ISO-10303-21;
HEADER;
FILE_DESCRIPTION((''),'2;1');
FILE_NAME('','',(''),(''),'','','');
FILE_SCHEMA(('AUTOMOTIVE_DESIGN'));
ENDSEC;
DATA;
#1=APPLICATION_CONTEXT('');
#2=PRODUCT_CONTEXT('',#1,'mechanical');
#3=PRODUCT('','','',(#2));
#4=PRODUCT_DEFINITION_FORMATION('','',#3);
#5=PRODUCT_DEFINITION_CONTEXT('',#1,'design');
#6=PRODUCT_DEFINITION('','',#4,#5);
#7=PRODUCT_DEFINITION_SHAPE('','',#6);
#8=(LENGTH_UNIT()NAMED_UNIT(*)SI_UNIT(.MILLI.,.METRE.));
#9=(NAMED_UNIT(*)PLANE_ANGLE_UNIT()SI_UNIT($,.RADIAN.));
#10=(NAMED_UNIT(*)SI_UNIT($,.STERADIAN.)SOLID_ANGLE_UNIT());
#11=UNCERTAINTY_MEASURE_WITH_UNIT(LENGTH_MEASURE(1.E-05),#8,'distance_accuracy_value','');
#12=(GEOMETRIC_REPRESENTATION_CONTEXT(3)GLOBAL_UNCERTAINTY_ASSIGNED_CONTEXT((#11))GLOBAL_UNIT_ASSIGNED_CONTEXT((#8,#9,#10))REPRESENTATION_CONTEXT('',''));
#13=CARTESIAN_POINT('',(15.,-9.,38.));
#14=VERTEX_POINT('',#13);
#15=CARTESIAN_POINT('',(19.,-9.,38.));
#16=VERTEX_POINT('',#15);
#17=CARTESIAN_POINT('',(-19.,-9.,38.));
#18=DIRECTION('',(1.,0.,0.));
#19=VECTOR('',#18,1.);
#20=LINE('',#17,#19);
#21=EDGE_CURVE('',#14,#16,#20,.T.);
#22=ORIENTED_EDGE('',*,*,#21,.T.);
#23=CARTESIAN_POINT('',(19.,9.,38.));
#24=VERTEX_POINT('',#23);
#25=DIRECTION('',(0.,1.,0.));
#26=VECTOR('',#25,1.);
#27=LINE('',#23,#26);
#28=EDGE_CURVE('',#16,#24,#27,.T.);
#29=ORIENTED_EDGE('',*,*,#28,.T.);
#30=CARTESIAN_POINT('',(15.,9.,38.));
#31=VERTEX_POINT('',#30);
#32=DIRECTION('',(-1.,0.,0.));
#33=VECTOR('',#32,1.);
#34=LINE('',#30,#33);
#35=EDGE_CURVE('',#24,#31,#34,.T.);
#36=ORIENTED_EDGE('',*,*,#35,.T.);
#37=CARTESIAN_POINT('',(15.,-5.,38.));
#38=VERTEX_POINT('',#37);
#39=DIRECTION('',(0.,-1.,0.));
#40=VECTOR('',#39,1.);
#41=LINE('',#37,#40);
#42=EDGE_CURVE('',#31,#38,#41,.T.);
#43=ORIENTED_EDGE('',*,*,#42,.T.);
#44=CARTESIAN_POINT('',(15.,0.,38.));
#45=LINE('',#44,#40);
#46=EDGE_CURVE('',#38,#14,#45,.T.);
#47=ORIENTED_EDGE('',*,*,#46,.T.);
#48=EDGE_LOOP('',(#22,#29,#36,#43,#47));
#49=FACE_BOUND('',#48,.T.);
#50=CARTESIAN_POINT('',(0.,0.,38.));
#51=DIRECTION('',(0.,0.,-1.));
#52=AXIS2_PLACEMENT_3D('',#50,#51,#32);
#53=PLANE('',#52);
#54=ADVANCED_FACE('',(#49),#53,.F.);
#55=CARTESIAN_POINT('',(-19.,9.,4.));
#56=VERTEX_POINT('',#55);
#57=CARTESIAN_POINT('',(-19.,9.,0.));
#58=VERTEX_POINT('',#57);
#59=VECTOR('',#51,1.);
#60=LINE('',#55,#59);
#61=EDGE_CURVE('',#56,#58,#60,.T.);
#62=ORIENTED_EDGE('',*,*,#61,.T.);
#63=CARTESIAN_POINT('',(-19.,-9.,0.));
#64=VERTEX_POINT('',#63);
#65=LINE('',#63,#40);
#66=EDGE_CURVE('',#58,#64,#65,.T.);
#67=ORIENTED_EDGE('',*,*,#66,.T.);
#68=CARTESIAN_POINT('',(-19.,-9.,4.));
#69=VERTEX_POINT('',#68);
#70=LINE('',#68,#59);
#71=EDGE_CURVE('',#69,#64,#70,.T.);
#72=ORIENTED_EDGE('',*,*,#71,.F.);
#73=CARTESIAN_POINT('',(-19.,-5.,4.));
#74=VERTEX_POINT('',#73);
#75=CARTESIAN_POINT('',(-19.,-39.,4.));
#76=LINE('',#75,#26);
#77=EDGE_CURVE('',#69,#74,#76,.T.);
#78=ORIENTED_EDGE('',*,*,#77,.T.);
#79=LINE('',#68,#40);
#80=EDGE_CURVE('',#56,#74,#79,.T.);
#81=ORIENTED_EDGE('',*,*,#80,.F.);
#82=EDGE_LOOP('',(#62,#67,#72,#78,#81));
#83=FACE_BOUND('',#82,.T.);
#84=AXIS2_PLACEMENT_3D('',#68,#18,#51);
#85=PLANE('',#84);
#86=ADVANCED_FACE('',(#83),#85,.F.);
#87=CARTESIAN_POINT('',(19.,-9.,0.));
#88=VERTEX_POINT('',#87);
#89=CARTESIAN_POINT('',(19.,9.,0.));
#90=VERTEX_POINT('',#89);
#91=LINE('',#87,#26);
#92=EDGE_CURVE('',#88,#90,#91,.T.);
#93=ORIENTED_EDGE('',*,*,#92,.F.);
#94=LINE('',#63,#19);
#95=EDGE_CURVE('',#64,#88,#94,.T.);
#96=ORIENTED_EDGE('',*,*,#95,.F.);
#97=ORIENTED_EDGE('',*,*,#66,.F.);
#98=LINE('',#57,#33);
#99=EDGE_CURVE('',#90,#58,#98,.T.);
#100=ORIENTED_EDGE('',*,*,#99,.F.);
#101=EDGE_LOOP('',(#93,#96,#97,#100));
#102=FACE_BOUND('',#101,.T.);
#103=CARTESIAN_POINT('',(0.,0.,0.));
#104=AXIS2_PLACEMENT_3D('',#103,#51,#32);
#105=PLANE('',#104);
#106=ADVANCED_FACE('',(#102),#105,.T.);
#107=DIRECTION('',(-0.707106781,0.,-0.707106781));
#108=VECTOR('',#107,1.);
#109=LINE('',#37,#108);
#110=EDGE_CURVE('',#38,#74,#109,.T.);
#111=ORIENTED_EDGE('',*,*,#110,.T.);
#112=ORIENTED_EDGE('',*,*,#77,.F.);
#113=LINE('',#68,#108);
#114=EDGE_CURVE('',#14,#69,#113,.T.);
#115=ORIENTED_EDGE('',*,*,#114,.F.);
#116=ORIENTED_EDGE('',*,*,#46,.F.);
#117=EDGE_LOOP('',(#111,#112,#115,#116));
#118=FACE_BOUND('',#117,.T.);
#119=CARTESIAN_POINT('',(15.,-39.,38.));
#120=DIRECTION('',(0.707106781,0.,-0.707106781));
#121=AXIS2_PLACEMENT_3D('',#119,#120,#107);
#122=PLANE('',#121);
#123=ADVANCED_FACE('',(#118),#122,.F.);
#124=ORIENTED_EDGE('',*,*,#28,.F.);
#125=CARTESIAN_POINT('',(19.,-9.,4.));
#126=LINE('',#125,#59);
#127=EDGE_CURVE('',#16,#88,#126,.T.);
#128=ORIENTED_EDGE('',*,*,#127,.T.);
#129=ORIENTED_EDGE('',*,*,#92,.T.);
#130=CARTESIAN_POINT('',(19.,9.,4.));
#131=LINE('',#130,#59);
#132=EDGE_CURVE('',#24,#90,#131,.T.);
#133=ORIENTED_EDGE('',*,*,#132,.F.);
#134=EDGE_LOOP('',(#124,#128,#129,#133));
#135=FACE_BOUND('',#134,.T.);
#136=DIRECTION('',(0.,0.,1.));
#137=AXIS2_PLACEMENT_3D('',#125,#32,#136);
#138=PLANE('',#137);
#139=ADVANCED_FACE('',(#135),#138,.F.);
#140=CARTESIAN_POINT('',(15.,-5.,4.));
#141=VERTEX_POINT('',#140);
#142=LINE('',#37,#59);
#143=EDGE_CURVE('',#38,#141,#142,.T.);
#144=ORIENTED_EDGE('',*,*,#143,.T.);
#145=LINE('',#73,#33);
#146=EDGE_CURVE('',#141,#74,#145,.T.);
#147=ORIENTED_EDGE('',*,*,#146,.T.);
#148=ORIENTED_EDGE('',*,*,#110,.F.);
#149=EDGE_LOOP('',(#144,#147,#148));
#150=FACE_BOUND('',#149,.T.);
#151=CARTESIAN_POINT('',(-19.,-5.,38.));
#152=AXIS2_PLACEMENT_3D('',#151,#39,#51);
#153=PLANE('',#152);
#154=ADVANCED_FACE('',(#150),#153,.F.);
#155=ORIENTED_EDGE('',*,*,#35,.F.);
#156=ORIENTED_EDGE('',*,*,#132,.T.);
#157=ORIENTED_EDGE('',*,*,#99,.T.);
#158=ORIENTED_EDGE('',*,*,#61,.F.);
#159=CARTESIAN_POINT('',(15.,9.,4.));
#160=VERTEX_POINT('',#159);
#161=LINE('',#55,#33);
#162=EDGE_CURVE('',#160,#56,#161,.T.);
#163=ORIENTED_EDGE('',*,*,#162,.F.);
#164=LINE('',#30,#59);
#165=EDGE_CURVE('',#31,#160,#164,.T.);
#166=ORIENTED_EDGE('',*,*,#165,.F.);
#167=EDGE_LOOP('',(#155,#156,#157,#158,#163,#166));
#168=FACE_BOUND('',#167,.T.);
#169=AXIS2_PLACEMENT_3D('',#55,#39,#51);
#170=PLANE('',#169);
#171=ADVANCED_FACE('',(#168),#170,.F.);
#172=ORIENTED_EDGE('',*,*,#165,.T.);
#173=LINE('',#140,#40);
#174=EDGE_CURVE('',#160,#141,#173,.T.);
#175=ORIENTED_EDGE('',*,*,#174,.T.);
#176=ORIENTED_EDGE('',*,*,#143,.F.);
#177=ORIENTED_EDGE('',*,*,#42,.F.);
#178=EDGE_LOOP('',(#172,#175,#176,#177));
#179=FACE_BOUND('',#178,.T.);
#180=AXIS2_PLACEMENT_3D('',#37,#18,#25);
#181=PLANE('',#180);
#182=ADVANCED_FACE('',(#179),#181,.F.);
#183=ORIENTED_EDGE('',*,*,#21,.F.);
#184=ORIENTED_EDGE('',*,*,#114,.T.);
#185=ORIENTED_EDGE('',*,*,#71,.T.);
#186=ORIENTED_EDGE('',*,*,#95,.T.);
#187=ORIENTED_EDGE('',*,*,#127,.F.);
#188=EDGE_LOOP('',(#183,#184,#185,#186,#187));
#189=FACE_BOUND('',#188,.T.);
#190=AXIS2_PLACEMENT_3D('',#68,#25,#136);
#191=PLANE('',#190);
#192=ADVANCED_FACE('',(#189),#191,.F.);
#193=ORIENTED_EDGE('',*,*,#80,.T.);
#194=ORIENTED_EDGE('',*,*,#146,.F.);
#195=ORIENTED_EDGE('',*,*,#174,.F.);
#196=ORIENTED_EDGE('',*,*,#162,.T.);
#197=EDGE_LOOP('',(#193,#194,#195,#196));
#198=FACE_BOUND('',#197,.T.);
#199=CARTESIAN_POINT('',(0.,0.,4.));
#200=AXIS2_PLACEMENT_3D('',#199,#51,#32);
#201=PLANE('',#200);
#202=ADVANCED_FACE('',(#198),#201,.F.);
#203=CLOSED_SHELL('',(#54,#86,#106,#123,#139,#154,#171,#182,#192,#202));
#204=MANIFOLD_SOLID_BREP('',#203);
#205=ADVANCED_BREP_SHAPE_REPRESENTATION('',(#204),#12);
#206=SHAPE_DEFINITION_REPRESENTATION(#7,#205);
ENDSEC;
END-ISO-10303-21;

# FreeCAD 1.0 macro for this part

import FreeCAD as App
import Part
import Sketcher

doc = App.newDocument("Part")
body = doc.addObject("PartDesign::Body", "Body")

sketch1 = body.newObject("Sketcher::SketchObject", "Sketch")
sketch1.AttachmentSupport = (doc.getObject("XY_Plane"), [""])
sketch1.MapMode = "FlatFace"
sketch1.addGeometry(Part.LineSegment(App.Vector(-19, 9, 0), App.Vector(-19, -9, 0)), False)
sketch1.addGeometry(Part.LineSegment(App.Vector(-19, -9, 0), App.Vector(19, -9, 0)), False)
sketch1.addGeometry(Part.LineSegment(App.Vector(19, -9, 0), App.Vector(19, 9, 0)), False)
sketch1.addGeometry(Part.LineSegment(App.Vector(19, 9, 0), App.Vector(-19, 9, 0)), False)
sketch1.addConstraint(Sketcher.Constraint("Coincident", 0, 2, 1, 1))
sketch1.addConstraint(Sketcher.Constraint("Coincident", 1, 2, 2, 1))
sketch1.addConstraint(Sketcher.Constraint("Coincident", 2, 2, 3, 1))
sketch1.addConstraint(Sketcher.Constraint("Coincident", 3, 2, 0, 1))
sketch1.addConstraint(Sketcher.Constraint("Vertical", 0))
sketch1.addConstraint(Sketcher.Constraint("Horizontal", 1))
sketch1.addConstraint(Sketcher.Constraint("Vertical", 2))
sketch1.addConstraint(Sketcher.Constraint("Horizontal", 3))
sketch1.addConstraint(Sketcher.Constraint("Symmetric", 0, 2, 2, 2, -1, 1))
sketch1.addConstraint(Sketcher.Constraint("DistanceX", 1, 1, 1, 2, 38.0))
sketch1.addConstraint(Sketcher.Constraint("DistanceY", 0, 2, 0, 1, 18.0))
pad1 = body.newObject("PartDesign::Pad", "Pad")
pad1.Profile = sketch1
pad1.Length = 4

sketch2 = body.newObject("Sketcher::SketchObject", "Sketch001")
sketch2.AttachmentSupport = (doc.getObject("XY_Plane"), [""])
sketch2.MapMode = "FlatFace"
sketch2.AttachmentOffset = App.Placement(App.Vector(0, 0, 4), App.Rotation())
sketch2.addGeometry(Part.LineSegment(App.Vector(19, -9, 0), App.Vector(19, 9, 0)), False)
sketch2.addGeometry(Part.LineSegment(App.Vector(19, 9, 0), App.Vector(15, 9, 0)), False)
sketch2.addGeometry(Part.LineSegment(App.Vector(15, 9, 0), App.Vector(15, -5, 0)), False)
sketch2.addGeometry(Part.LineSegment(App.Vector(15, -5, 0), App.Vector(-19, -5, 0)), False)
sketch2.addGeometry(Part.LineSegment(App.Vector(-19, -5, 0), App.Vector(-19, -9, 0)), False)
sketch2.addGeometry(Part.LineSegment(App.Vector(-19, -9, 0), App.Vector(19, -9, 0)), False)
sketch2.addConstraint(Sketcher.Constraint("Coincident", 0, 2, 1, 1))
sketch2.addConstraint(Sketcher.Constraint("Coincident", 1, 2, 2, 1))
sketch2.addConstraint(Sketcher.Constraint("Coincident", 2, 2, 3, 1))
sketch2.addConstraint(Sketcher.Constraint("Coincident", 3, 2, 4, 1))
sketch2.addConstraint(Sketcher.Constraint("Coincident", 4, 2, 5, 1))
sketch2.addConstraint(Sketcher.Constraint("Coincident", 5, 2, 0, 1))
sketch2.addConstraint(Sketcher.Constraint("Vertical", 0))
sketch2.addConstraint(Sketcher.Constraint("Horizontal", 1))
sketch2.addConstraint(Sketcher.Constraint("Vertical", 2))
sketch2.addConstraint(Sketcher.Constraint("Horizontal", 3))
sketch2.addConstraint(Sketcher.Constraint("Vertical", 4))
sketch2.addConstraint(Sketcher.Constraint("Horizontal", 5))
sketch2.addConstraint(Sketcher.Constraint("Symmetric", 0, 2, 4, 2, -1, 1))
sketch2.addConstraint(Sketcher.Constraint("Equal", 1, 4))
sketch2.addConstraint(Sketcher.Constraint("DistanceX", 1, 2, 1, 1, 4.0))
sketch2.addConstraint(Sketcher.Constraint("DistanceX", 3, 2, 3, 1, 34.0))
sketch2.addConstraint(Sketcher.Constraint("DistanceY", 0, 1, 0, 2, 18.0))
pad2 = body.newObject("PartDesign::Pad", "Pad001")
pad2.Profile = sketch2
pad2.Length = 34

sketch3 = body.newObject("Sketcher::SketchObject", "Sketch002")
sketch3.AttachmentSupport = (doc.getObject("XZ_Plane"), [""])
sketch3.MapMode = "FlatFace"
sketch3.AttachmentOffset = App.Placement(App.Vector(0, 0, 5), App.Rotation())
sketch3.addGeometry(Part.LineSegment(App.Vector(15, 38, 0), App.Vector(-19, 4, 0)), False)
sketch3.addGeometry(Part.LineSegment(App.Vector(-19, 4, 0), App.Vector(-19, 38, 0)), False)
sketch3.addGeometry(Part.LineSegment(App.Vector(-19, 38, 0), App.Vector(15, 38, 0)), False)
sketch3.addConstraint(Sketcher.Constraint("Coincident", 0, 2, 1, 1))
sketch3.addConstraint(Sketcher.Constraint("Coincident", 1, 2, 2, 1))
sketch3.addConstraint(Sketcher.Constraint("Coincident", 2, 2, 0, 1))
sketch3.addConstraint(Sketcher.Constraint("Vertical", 1))
sketch3.addConstraint(Sketcher.Constraint("Horizontal", 2))
sketch3.addConstraint(Sketcher.Constraint("Equal", 2, 1))
sketch3.addConstraint(Sketcher.Constraint("DistanceX", 2, 1, 2, 2, 34.0))
sketch3.addConstraint(Sketcher.Constraint("DistanceX", 0, 2, -1, 1, 19.0))
sketch3.addConstraint(Sketcher.Constraint("DistanceY", -1, 1, 0, 2, 4.0))
pocket1 = body.newObject("PartDesign::Pocket", "Pocket")
pocket1.Profile = sketch3
pocket1.Length = 34
pocket1.Reversed = True

doc.recompute()
